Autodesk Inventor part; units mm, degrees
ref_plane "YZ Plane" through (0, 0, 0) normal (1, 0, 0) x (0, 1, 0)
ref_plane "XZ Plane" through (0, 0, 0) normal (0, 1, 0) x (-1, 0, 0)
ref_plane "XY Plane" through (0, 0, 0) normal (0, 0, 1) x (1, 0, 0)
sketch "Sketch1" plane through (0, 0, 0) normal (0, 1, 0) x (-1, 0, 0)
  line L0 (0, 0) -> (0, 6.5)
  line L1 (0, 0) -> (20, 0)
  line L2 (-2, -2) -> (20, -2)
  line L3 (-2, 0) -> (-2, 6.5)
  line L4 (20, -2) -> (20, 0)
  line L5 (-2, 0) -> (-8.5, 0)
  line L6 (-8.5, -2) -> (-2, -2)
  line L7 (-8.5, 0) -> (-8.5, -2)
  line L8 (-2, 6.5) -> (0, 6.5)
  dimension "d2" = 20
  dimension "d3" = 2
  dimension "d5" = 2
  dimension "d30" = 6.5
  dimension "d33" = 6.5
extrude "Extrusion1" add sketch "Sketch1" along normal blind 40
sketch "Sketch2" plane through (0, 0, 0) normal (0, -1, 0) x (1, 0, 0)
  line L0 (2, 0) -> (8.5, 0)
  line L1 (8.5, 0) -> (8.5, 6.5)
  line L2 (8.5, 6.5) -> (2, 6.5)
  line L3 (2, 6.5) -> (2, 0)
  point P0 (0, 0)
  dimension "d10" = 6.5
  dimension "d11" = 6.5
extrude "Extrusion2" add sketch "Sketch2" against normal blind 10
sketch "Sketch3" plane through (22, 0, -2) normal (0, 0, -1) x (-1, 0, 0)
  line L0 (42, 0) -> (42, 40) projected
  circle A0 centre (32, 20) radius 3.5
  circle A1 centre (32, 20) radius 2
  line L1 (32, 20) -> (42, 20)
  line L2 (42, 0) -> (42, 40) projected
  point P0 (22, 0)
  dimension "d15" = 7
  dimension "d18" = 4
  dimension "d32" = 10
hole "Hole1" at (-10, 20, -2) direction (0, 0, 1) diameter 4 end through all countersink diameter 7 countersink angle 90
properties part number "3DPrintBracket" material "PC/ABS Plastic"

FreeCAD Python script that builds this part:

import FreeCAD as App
import Part
import Sketcher

doc = App.newDocument("Part")
body = doc.addObject("PartDesign::Body", "Body")

# Sketch on XZ plane
sketch1 = doc.addObject("Sketcher::SketchObject", "Sketch")
body.addObject(sketch1)
sketch1.AttachmentSupport = (doc.XZ_Plane, [""])
sketch1.MapMode = "FlatFace"
sketch1.addGeometry([
    Part.LineSegment(App.Vector(-20, 0, 0), App.Vector(0, 0, 0)),  # 0
    Part.LineSegment(App.Vector(0, 0, 0), App.Vector(0, 6.5, 0)),  # 1
    Part.LineSegment(App.Vector(0, 6.5, 0), App.Vector(2, 6.5, 0)),  # 2
    Part.LineSegment(App.Vector(2, 6.5, 0), App.Vector(2, 0, 0)),  # 3
    Part.LineSegment(App.Vector(2, 0, 0), App.Vector(8.5, 0, 0)),  # 4
    Part.LineSegment(App.Vector(8.5, 0, 0), App.Vector(8.5, -2, 0)),  # 5
    Part.LineSegment(App.Vector(8.5, -2, 0), App.Vector(-20, -2, 0)),  # 6
    Part.LineSegment(App.Vector(-20, -2, 0), App.Vector(-20, 0, 0)),  # 7
], False)
sketch1.addConstraint([
    Sketcher.Constraint("Coincident", 0, 2, 1, 1),
    Sketcher.Constraint("Coincident", 1, 2, 2, 1),
    Sketcher.Constraint("Coincident", 2, 2, 3, 1),
    Sketcher.Constraint("Coincident", 3, 2, 4, 1),
    Sketcher.Constraint("Coincident", 4, 2, 5, 1),
    Sketcher.Constraint("Coincident", 5, 2, 6, 1),
    Sketcher.Constraint("Coincident", 6, 2, 7, 1),
    Sketcher.Constraint("Coincident", 7, 2, 0, 1),
    Sketcher.Constraint("Horizontal", 0),
    Sketcher.Constraint("Vertical", 1),
    Sketcher.Constraint("Horizontal", 2),
    Sketcher.Constraint("Vertical", 3),
    Sketcher.Constraint("Horizontal", 4),
    Sketcher.Constraint("Vertical", 5),
    Sketcher.Constraint("Horizontal", 6),
    Sketcher.Constraint("Vertical", 7),
    Sketcher.Constraint("Coincident", 0, 2, -1, 1),
    Sketcher.Constraint("PointOnObject", 3, 2, -1),
    Sketcher.Constraint("Equal", 4, 1),
    Sketcher.Constraint("Equal", 2, 5),
    Sketcher.Constraint("DistanceX", 0, 1, 0, 2, 20.0),
    Sketcher.Constraint("DistanceX", 2, 1, 2, 2, 2.0),
    Sketcher.Constraint("DistanceX", 4, 1, 4, 2, 6.5),
])
pad1 = doc.addObject("PartDesign::Pad", "Pad")
body.addObject(pad1)
pad1.Profile = sketch1
pad1.Length = 40
pad1.Reversed = True

# Sketch on XZ plane
sketch2 = doc.addObject("Sketcher::SketchObject", "Sketch001")
body.addObject(sketch2)
sketch2.AttachmentSupport = (doc.XZ_Plane, [""])
sketch2.MapMode = "FlatFace"
sketch2.addGeometry([
    Part.LineSegment(App.Vector(2, 6, 0), App.Vector(2, 0, 0)),
    Part.LineSegment(App.Vector(2, 0, 0), App.Vector(8, 0, 0)),
    Part.LineSegment(App.Vector(8, 0, 0), App.Vector(8, 6, 0)),
    Part.LineSegment(App.Vector(8, 6, 0), App.Vector(2, 6, 0)),
], False)
sketch2.addConstraint([
    Sketcher.Constraint("Coincident", 0, 2, 1, 1),
    Sketcher.Constraint("Coincident", 1, 2, 2, 1),
    Sketcher.Constraint("Coincident", 2, 2, 3, 1),
    Sketcher.Constraint("Coincident", 3, 2, 0, 1),
    Sketcher.Constraint("Vertical", 0),
    Sketcher.Constraint("Horizontal", 1),
    Sketcher.Constraint("Vertical", 2),
    Sketcher.Constraint("Horizontal", 3),
    Sketcher.Constraint("PointOnObject", 0, 2, -1),
    Sketcher.Constraint("Equal", 3, 0),
    Sketcher.Constraint("DistanceX", 1, 1, 1, 2, 6.5),
    Sketcher.Constraint("DistanceX", -1, 1, 0, 2, 2.0),
])
pad2 = doc.addObject("PartDesign::Pad", "Pad001")
body.addObject(pad2)
pad2.Profile = sketch2
pad2.Length = 10
pad2.Reversed = True

# Sketch on XY plane
sketch3 = doc.addObject("Sketcher::SketchObject", "Sketch002")
body.addObject(sketch3)
sketch3.AttachmentSupport = (doc.XY_Plane, [""])
sketch3.MapMode = "FlatFace"
sketch3.AttachmentOffset = App.Placement(App.Vector(0, 0, -2), App.Rotation())
sketch3.addGeometry(Part.Circle(App.Vector(-10, 20, 0), App.Vector(0, 0, 1), 2), False)
sketch3.addConstraint([
    Sketcher.Constraint("Diameter", 0, 4.0),
    Sketcher.Constraint("DistanceX", 0, 3, -1, 1, 10.0),
    Sketcher.Constraint("DistanceY", -1, 1, 0, 3, 20.0),
])
doc.recompute()
hole = doc.addObject("PartDesign::Hole", "Hole")
body.addObject(hole)
hole.Profile = sketch3
hole.ThreadType = "None"
hole.Diameter = 4
hole.DepthType = "ThroughAll"
hole.HoleCutType = "Countersink"
hole.HoleCutDiameter = 7
hole.HoleCutCountersinkAngle = 90
hole.Reversed = True

doc.recompute()
